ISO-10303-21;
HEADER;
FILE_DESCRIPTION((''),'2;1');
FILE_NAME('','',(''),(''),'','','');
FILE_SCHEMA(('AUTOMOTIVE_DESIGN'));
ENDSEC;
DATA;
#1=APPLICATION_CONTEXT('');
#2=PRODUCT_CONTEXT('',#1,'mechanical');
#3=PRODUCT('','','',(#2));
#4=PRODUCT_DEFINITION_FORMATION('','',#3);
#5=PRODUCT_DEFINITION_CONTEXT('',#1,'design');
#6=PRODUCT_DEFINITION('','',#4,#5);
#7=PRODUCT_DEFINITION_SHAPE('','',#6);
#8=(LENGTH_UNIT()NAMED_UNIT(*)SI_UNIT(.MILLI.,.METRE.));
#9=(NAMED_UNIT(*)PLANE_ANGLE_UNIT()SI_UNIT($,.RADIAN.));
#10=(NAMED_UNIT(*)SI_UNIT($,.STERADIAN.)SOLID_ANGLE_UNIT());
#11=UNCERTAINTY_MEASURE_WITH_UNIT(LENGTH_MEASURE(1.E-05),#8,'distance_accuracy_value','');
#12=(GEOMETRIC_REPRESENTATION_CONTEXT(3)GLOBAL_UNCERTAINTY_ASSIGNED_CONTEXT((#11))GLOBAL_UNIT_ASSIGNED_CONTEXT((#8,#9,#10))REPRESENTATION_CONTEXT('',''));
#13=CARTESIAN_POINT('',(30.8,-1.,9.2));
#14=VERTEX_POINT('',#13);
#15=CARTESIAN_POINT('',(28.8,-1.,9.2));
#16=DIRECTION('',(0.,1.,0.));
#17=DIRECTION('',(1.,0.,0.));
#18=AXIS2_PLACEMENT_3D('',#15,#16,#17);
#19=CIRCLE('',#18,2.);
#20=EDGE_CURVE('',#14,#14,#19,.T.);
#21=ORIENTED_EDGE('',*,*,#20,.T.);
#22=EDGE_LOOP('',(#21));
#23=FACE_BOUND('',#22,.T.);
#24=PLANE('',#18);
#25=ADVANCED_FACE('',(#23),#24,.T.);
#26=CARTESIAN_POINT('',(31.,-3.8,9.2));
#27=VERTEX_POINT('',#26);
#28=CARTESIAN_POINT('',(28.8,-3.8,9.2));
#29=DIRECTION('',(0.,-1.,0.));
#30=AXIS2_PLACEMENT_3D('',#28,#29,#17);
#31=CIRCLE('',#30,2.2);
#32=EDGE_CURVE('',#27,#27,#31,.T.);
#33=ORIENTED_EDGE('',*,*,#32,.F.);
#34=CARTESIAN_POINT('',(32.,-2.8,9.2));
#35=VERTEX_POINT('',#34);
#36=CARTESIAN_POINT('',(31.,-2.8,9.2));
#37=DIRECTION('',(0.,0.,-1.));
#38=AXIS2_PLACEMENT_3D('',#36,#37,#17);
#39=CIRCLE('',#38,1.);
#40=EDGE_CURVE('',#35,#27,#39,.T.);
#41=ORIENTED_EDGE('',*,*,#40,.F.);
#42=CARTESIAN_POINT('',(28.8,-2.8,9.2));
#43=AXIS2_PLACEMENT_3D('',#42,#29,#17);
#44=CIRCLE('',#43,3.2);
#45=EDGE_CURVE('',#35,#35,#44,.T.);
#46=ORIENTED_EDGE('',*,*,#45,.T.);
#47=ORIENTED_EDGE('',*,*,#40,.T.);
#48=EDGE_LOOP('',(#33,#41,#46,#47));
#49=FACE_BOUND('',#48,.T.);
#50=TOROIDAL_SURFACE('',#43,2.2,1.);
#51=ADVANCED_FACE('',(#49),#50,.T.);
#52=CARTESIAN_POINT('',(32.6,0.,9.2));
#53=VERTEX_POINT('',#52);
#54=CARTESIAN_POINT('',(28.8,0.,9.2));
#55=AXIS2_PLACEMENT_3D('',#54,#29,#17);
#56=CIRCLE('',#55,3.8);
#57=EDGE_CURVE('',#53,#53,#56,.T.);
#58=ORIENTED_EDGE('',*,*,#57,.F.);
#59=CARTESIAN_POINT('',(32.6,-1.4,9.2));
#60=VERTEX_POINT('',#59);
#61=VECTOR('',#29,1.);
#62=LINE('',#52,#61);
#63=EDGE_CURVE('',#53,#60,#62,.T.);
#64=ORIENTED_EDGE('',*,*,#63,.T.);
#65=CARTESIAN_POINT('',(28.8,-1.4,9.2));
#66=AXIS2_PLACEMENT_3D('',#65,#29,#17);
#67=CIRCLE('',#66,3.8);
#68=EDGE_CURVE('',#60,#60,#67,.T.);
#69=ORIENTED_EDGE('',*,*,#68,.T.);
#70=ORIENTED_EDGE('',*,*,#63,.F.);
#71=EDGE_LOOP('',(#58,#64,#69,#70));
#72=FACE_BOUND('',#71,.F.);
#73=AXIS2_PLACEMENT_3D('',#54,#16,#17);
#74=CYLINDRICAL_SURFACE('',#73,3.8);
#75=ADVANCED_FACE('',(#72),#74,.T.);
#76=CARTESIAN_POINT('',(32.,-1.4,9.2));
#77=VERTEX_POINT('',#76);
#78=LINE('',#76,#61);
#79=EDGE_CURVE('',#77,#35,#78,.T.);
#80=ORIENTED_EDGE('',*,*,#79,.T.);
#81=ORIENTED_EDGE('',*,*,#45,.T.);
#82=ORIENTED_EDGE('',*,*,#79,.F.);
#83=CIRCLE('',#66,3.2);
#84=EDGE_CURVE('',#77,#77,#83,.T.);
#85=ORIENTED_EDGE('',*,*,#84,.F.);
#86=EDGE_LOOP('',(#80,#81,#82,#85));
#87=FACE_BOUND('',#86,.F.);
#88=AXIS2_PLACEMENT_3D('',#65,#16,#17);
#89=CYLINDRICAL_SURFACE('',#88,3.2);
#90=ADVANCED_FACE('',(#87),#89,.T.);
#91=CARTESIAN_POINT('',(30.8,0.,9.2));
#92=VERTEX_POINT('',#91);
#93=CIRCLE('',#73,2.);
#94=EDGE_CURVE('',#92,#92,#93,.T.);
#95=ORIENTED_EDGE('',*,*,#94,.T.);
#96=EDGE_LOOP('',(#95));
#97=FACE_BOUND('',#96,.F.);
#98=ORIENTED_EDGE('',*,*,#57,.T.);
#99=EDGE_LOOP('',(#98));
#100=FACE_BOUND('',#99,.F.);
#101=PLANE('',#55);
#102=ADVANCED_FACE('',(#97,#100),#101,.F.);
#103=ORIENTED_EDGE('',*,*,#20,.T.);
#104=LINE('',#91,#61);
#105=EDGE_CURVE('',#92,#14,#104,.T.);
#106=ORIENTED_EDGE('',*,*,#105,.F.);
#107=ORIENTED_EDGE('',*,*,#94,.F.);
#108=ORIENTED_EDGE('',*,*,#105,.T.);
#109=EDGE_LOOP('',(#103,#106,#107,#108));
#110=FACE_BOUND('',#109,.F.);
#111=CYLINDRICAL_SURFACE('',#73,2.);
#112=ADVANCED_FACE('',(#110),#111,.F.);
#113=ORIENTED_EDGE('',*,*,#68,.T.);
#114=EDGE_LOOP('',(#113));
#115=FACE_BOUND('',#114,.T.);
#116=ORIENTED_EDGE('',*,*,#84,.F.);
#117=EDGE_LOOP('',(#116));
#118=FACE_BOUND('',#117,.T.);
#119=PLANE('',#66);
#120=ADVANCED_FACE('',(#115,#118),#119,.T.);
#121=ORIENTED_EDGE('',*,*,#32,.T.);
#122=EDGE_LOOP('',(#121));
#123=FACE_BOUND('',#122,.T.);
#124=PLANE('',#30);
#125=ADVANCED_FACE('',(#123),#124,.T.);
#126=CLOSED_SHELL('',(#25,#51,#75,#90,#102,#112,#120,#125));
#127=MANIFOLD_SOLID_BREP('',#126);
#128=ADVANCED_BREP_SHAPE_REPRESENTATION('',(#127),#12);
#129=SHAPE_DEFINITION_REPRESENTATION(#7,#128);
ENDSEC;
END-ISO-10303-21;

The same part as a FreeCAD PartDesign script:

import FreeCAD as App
import Part
import Sketcher


def edges_at(feature, points):
    """Names of the edges that pass closest to the given points."""
    edges = feature.Shape.Edges
    near = lambda p: min(range(len(edges)), key=lambda i: edges[i].distToShape(Part.Vertex(*p))[0])
    return sorted({f"Edge{near(p) + 1}" for p in points})

doc = App.newDocument("Part")
params = doc.addObject("Spreadsheet::Sheet", "Params")
for row, (alias, value) in enumerate([
    ("sketch1_diameter", "7.6 mm"),
    ("pad1_length", "1.4 mm"),
    ("sketch2_diameter", "6.4 mm"),
    ("pad2_length", "2.4 mm"),
    ("sketch3_diameter", "4 mm"),
    ("pocket1_length", "1 mm"),
    ("fillet_radius", "1 mm"),
], start=1):
    params.set(f"A{row}", alias)
    params.set(f"B{row}", "=" + value)
    params.setAlias(f"B{row}", alias)

body = doc.addObject("PartDesign::Body", "Body")

sketch1 = doc.addObject("Sketcher::SketchObject", "Sketch")
body.addObject(sketch1)
sketch1.AttachmentSupport = (doc.XZ_Plane, [""])
sketch1.MapMode = "FlatFace"
sketch1.addGeometry(Part.Circle(App.Vector(28.8, 9.2, 0), App.Vector(0, 0, 1), 3.8), False)
sketch1.addConstraint([
    Sketcher.Constraint("Diameter", 0, 7.6),
    Sketcher.Constraint("DistanceX", -1, 1, 0, 3, 28.8),
    Sketcher.Constraint("DistanceY", -1, 1, 0, 3, 9.2),
])
sketch1.setExpression("Constraints[0]", "Params.sketch1_diameter")
pad1 = doc.addObject("PartDesign::Pad", "Pad")
body.addObject(pad1)
pad1.Profile = sketch1
pad1.setExpression("Length", "Params.pad1_length")

sketch2 = doc.addObject("Sketcher::SketchObject", "Sketch001")
body.addObject(sketch2)
sketch2.AttachmentSupport = (doc.XZ_Plane, [""])
sketch2.MapMode = "FlatFace"
sketch2.AttachmentOffset = App.Placement(App.Vector(0, 0, 1.4), App.Rotation())
sketch2.addGeometry(Part.Circle(App.Vector(28.8, 9.2, 0), App.Vector(0, 0, 1), 3.2), False)
sketch2.addConstraint([
    Sketcher.Constraint("Diameter", 0, 6.4),
    Sketcher.Constraint("DistanceX", -1, 1, 0, 3, 28.8),
    Sketcher.Constraint("DistanceY", -1, 1, 0, 3, 9.2),
])
sketch2.setExpression("Constraints[0]", "Params.sketch2_diameter")
pad2 = doc.addObject("PartDesign::Pad", "Pad001")
body.addObject(pad2)
pad2.Profile = sketch2
pad2.setExpression("Length", "Params.pad2_length")

sketch3 = doc.addObject("Sketcher::SketchObject", "Sketch002")
body.addObject(sketch3)
sketch3.AttachmentSupport = (doc.XZ_Plane, [""])
sketch3.MapMode = "FlatFace"
sketch3.addGeometry(Part.Circle(App.Vector(28.8, 9.2, 0), App.Vector(0, 0, 1), 2), False)
sketch3.addConstraint([
    Sketcher.Constraint("Diameter", 0, 4.0),
    Sketcher.Constraint("DistanceX", -1, 1, 0, 3, 28.8),
    Sketcher.Constraint("DistanceY", -1, 1, 0, 3, 9.2),
])
sketch3.setExpression("Constraints[0]", "Params.sketch3_diameter")
pocket1 = doc.addObject("PartDesign::Pocket", "Pocket")
body.addObject(pocket1)
pocket1.Profile = sketch3
pocket1.setExpression("Length", "Params.pocket1_length")
pocket1.Reversed = True
doc.recompute()

fillet = doc.addObject("PartDesign::Fillet", "Fillet")
body.addObject(fillet)
fillet.Base = (pocket1, edges_at(pocket1, [(25.6, -3.8, 9.2)]))
fillet.setExpression("Radius", "Params.fillet_radius")

doc.recompute()
